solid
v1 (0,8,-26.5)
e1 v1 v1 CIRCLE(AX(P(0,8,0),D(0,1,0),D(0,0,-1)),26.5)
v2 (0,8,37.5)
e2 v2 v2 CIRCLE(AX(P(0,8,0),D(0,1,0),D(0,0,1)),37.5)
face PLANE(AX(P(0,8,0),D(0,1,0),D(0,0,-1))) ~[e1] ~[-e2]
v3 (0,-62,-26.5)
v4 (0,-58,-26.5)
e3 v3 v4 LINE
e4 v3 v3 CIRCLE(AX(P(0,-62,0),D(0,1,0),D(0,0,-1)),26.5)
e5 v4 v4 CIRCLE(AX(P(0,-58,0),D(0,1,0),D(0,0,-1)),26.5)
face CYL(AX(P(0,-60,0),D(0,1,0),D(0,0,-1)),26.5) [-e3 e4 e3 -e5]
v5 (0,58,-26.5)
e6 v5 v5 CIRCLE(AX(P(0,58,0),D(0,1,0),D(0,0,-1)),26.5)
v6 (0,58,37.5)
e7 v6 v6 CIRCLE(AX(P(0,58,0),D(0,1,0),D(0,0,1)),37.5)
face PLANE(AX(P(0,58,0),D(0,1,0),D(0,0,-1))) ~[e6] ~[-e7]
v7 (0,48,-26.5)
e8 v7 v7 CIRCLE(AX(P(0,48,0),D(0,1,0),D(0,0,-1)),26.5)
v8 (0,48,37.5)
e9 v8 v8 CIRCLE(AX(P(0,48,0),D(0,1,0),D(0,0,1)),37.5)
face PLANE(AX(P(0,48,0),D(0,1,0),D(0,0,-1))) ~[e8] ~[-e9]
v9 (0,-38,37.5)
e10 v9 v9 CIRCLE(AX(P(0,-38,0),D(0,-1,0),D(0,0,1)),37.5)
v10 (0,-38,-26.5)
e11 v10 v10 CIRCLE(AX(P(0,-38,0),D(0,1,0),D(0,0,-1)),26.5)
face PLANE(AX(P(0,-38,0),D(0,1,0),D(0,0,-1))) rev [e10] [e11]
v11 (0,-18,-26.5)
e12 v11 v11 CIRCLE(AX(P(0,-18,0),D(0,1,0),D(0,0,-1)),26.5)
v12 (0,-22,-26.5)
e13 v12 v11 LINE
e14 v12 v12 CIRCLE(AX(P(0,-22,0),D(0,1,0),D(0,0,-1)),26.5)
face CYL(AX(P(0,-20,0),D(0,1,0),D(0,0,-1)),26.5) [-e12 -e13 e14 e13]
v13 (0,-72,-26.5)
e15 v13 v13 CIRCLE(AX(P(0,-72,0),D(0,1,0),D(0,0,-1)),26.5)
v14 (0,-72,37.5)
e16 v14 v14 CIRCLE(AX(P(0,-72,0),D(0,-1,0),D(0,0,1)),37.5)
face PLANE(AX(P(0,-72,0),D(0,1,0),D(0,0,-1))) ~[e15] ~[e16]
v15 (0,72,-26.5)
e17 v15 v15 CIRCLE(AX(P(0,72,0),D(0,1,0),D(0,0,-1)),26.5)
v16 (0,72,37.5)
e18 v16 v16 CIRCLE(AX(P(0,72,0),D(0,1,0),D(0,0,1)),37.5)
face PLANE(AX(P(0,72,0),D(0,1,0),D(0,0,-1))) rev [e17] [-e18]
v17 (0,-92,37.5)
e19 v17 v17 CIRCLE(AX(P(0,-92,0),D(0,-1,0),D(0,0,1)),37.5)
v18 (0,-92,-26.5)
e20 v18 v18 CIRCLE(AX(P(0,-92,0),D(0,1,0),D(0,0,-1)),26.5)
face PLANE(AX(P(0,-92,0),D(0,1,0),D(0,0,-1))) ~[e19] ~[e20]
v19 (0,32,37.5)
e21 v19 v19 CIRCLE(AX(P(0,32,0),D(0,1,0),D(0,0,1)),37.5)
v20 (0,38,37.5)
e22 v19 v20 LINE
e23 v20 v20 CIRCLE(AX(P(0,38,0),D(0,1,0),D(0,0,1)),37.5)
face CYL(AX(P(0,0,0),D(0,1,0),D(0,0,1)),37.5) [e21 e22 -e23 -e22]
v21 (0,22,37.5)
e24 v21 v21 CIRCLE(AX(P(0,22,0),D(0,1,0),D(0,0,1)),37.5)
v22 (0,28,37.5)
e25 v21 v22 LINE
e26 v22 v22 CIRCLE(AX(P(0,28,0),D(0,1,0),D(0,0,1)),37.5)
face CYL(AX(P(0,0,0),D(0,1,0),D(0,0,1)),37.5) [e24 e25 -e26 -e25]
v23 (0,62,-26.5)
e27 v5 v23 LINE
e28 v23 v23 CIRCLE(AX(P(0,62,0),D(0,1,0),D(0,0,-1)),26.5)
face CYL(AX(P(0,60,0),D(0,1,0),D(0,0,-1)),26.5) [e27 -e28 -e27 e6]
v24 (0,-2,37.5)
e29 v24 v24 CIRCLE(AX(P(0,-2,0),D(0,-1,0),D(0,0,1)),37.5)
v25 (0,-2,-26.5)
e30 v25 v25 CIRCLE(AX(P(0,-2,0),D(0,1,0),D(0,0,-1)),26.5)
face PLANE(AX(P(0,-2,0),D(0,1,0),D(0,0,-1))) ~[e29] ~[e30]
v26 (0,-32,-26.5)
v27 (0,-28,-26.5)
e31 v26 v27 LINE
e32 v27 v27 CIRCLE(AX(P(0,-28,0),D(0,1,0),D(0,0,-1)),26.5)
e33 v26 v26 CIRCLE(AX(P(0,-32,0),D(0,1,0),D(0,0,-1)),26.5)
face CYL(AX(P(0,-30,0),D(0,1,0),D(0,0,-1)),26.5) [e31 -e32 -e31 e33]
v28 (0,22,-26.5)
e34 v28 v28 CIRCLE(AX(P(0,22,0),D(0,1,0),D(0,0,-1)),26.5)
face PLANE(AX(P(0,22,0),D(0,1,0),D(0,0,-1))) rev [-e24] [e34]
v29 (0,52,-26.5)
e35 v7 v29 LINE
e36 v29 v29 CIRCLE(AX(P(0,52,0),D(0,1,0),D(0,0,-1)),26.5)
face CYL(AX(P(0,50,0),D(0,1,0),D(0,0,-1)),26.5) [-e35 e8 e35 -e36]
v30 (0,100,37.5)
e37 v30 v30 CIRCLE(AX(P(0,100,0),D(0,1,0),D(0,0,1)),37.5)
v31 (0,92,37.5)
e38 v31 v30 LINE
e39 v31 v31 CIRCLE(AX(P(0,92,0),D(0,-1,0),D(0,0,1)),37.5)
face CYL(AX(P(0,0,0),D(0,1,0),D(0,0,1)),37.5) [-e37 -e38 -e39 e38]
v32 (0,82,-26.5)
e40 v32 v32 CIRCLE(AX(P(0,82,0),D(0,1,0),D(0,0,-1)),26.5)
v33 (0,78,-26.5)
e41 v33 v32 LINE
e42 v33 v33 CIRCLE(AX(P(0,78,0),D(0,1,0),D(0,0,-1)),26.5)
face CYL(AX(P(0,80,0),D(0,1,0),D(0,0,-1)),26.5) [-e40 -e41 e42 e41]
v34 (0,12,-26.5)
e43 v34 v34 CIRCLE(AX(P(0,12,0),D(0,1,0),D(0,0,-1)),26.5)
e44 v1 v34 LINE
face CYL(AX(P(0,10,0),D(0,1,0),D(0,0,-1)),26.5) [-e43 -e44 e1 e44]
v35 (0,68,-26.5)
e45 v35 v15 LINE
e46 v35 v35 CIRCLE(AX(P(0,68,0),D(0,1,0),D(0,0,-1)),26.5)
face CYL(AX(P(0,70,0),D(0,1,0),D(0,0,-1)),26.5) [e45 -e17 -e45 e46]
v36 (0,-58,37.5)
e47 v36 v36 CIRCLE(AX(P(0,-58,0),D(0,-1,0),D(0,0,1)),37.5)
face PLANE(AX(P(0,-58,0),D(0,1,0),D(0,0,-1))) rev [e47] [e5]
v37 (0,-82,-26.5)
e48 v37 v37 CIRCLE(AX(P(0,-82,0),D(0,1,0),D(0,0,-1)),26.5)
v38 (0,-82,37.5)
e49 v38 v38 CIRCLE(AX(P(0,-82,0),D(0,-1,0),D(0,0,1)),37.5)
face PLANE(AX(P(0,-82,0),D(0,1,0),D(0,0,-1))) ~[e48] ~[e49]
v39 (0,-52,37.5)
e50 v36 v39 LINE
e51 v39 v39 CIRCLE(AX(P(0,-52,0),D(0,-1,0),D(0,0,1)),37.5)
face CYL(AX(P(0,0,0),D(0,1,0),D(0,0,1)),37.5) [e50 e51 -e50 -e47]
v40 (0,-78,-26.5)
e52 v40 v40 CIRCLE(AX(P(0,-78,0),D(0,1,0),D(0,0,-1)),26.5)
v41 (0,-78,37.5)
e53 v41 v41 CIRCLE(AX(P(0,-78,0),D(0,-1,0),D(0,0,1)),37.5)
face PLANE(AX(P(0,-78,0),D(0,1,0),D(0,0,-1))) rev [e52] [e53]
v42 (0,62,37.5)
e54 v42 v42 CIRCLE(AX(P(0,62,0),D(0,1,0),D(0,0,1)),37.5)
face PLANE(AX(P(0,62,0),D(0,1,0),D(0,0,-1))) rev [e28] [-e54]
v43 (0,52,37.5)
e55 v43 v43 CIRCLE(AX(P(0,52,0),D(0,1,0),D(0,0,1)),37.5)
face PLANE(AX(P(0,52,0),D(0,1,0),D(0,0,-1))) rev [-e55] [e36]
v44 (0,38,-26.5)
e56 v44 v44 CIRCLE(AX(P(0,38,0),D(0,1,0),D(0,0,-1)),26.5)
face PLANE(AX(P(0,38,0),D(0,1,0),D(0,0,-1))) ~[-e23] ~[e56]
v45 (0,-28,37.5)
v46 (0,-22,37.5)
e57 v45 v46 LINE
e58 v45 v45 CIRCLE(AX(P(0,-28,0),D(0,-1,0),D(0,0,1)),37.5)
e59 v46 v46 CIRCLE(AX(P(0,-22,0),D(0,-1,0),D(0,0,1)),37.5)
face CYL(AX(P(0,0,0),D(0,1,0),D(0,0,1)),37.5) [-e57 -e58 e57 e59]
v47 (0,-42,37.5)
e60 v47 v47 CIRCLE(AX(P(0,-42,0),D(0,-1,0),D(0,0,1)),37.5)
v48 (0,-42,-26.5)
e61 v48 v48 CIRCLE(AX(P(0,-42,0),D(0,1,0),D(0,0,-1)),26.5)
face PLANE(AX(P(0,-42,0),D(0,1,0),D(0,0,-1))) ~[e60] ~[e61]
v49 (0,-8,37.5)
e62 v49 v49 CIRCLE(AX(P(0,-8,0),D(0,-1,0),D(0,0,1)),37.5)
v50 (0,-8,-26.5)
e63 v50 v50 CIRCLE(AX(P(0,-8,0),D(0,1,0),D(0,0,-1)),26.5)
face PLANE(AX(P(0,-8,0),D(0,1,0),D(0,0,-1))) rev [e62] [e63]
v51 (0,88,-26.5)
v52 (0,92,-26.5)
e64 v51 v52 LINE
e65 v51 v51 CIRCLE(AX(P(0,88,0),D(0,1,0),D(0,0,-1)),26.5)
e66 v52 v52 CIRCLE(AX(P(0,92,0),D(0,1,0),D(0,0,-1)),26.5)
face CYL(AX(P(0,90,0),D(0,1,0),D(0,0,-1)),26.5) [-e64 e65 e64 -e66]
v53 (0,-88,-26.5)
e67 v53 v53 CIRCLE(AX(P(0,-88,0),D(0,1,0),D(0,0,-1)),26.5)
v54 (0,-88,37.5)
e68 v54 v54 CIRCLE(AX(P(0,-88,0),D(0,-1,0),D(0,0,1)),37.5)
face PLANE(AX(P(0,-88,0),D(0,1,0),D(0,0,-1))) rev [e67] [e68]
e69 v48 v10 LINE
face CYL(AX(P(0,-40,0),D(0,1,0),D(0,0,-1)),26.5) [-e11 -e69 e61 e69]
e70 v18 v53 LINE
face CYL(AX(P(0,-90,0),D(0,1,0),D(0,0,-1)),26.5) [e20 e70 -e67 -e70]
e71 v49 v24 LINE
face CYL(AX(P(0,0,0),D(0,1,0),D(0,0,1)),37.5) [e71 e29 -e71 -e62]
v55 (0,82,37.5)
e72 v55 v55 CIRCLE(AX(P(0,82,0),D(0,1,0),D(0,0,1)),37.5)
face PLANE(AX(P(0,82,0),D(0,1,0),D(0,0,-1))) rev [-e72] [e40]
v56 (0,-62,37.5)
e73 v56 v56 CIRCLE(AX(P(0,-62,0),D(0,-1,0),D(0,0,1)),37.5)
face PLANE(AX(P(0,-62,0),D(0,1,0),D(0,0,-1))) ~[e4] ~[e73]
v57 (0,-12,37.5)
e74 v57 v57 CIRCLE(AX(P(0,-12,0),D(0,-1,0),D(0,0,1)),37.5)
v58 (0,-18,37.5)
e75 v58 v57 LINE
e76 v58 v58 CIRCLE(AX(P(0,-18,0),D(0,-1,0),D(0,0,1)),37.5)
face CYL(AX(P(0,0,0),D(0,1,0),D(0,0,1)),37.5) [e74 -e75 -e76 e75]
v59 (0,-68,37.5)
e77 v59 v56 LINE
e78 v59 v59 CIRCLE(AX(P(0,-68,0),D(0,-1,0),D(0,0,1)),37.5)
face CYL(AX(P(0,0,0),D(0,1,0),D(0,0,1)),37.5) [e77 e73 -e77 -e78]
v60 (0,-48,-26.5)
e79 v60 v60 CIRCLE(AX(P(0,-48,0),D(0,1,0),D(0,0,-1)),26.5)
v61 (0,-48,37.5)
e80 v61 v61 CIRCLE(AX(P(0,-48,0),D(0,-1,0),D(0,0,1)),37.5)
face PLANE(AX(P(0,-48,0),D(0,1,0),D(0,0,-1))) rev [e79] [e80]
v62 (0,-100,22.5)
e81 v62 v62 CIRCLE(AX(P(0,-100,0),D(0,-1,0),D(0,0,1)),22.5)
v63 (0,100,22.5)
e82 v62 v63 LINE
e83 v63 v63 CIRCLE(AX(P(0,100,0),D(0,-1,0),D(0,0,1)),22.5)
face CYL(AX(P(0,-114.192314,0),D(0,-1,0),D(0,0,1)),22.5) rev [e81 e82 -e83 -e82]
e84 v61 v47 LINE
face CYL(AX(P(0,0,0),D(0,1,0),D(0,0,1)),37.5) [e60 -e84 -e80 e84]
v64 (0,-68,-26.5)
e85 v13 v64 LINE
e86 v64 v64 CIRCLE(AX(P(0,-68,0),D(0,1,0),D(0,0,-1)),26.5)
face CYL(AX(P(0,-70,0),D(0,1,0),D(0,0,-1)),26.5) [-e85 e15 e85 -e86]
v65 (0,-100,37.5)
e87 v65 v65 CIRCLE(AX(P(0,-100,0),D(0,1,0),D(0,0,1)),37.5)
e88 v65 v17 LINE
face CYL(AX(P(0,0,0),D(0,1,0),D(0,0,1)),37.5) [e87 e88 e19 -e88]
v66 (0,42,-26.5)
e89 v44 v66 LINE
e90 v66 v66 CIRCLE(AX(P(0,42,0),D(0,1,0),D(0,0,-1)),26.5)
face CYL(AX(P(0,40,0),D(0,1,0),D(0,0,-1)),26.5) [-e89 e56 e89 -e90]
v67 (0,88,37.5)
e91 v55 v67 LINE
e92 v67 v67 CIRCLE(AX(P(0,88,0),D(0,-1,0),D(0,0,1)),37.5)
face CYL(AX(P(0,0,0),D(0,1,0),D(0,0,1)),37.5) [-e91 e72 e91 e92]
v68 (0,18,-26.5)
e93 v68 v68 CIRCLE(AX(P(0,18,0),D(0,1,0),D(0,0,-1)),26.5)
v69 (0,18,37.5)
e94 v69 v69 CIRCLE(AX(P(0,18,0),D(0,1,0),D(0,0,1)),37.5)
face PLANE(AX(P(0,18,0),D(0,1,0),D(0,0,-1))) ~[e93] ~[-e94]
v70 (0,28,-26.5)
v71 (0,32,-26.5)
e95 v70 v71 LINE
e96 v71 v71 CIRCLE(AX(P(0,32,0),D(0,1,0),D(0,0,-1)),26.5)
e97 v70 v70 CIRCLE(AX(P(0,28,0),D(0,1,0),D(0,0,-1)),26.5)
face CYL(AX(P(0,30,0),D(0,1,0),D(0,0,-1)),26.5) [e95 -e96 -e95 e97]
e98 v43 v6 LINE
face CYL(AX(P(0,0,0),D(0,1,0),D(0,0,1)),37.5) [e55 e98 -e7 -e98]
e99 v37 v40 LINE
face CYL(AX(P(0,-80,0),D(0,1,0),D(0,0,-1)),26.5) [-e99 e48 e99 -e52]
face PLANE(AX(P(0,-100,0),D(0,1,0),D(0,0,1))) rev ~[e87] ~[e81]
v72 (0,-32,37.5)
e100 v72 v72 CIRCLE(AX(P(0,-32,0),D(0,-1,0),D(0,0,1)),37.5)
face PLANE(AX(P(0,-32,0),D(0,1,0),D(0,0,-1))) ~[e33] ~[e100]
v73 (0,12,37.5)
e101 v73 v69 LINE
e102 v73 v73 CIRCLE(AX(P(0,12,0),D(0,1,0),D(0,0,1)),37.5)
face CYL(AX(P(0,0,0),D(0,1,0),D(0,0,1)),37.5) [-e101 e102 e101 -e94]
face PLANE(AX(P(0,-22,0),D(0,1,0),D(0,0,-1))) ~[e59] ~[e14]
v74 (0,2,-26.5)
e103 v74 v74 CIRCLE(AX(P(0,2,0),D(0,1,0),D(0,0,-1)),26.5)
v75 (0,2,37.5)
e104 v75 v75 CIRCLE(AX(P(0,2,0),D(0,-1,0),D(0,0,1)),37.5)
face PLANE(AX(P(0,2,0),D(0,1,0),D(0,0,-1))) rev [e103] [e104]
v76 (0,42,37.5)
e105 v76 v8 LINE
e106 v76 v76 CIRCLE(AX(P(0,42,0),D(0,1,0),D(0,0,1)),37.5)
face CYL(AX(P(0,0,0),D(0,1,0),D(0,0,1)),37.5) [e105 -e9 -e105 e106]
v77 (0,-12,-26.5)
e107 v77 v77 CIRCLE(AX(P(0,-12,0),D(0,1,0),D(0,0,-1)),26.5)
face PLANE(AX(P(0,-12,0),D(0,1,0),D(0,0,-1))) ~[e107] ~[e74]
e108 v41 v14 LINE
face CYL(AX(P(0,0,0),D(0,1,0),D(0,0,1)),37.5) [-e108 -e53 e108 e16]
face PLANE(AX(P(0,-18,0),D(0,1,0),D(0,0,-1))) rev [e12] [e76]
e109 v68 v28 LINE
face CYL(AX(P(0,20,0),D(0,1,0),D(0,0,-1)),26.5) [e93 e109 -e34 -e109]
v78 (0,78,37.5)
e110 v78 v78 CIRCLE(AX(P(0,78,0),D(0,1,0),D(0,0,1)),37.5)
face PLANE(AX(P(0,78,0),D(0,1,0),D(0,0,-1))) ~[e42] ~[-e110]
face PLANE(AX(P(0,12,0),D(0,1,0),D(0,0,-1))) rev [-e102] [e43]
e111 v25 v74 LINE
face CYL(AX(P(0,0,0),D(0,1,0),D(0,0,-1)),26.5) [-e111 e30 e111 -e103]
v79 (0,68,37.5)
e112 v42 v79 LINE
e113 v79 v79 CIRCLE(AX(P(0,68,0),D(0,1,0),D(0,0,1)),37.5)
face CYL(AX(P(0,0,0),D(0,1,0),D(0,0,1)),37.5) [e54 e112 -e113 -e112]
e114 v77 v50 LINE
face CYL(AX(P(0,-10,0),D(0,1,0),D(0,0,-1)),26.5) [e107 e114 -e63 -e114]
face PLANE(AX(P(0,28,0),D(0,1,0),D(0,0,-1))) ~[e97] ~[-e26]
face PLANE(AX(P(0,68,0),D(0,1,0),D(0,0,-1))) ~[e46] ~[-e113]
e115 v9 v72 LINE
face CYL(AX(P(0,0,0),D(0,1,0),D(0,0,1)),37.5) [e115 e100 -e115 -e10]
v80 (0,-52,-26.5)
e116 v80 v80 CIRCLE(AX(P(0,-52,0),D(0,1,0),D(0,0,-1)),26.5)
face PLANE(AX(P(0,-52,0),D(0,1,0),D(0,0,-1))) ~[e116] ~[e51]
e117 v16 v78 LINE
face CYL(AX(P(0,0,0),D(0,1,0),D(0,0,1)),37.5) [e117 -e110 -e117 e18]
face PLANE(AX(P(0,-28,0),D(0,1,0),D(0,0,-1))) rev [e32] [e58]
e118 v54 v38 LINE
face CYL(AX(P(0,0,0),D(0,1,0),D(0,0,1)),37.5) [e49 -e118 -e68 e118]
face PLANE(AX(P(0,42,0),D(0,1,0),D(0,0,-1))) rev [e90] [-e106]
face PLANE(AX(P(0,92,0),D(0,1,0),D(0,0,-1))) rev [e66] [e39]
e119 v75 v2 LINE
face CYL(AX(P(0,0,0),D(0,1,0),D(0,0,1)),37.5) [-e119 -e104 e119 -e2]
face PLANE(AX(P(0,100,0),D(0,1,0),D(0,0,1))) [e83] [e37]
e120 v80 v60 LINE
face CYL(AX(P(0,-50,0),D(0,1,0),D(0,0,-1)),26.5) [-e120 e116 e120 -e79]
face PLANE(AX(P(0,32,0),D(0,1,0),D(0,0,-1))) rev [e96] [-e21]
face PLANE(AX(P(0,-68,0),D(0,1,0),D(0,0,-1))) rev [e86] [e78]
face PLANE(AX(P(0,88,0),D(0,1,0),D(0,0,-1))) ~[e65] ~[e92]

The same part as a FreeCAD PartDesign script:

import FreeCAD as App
import Part
import Sketcher
Q = App.Units.Quantity

doc = App.newDocument("Part")
body = doc.addObject("PartDesign::Body", "Body")

# Sketch on XZ plane
sketch1 = body.newObject("Sketcher::SketchObject", "Sketch")
sketch1.AttachmentSupport = (doc.getObject("XZ_Plane"), [""])
sketch1.MapMode = "FlatFace"
sketch1.addGeometry(Part.Circle(App.Vector(0, 0, 0), App.Vector(0, 0, 1), 38), False)
sketch1.addConstraint(Sketcher.Constraint("Coincident", 0, 3, -1, 1))
sketch1.addConstraint(Sketcher.Constraint("Diameter", 0, Q("75 mm")))
pad1 = body.newObject("PartDesign::Pad", "Pad")
pad1.Profile = sketch1
pad1.Length = 200
pad1.Midplane = True

# Sketch on XZ plane
sketch2 = body.newObject("Sketcher::SketchObject", "Sketch001")
sketch2.AttachmentSupport = (doc.getObject("XZ_Plane"), [""])
sketch2.MapMode = "FlatFace"
sketch2.addGeometry(Part.Circle(App.Vector(0, 0, 0), App.Vector(0, 0, 1), 22), False)
sketch2.addConstraint(Sketcher.Constraint("Coincident", 0, 3, -1, 1))
sketch2.addConstraint(Sketcher.Constraint("Diameter", 0, Q("45 mm")))
pocket1 = body.newObject("PartDesign::Pocket", "Pocket")
pocket1.Profile = sketch2
pocket1.Type = "ThroughAll"
pocket1.Midplane = True

# Sketch on XY plane
sketch3 = body.newObject("Sketcher::SketchObject", "Sketch002")
sketch3.AttachmentSupport = (doc.getObject("XY_Plane"), [""])
sketch3.MapMode = "FlatFace"
sketch3.addGeometry(Part.LineSegment(App.Vector(26.5, 92, 0), App.Vector(26.5, 88, 0)), False)
sketch3.addGeometry(Part.LineSegment(App.Vector(26.5, 88, 0), App.Vector(37.5, 88, 0)), False)
sketch3.addGeometry(Part.LineSegment(App.Vector(37.5, 88, 0), App.Vector(37.5, 92, 0)), False)
sketch3.addGeometry(Part.LineSegment(App.Vector(37.5, 92, 0), App.Vector(26.5, 92, 0)), False)
sketch3.addConstraint(Sketcher.Constraint("Coincident", 0, 2, 1, 1))
sketch3.addConstraint(Sketcher.Constraint("Coincident", 1, 2, 2, 1))
sketch3.addConstraint(Sketcher.Constraint("Coincident", 2, 2, 3, 1))
sketch3.addConstraint(Sketcher.Constraint("Coincident", 3, 2, 0, 1))
sketch3.addConstraint(Sketcher.Constraint("Vertical", 0))
sketch3.addConstraint(Sketcher.Constraint("Horizontal", 1))
sketch3.addConstraint(Sketcher.Constraint("Vertical", 2))
sketch3.addConstraint(Sketcher.Constraint("Horizontal", 3))
sketch3.addConstraint(Sketcher.Constraint("DistanceX", 1, 1, 1, 2, Q("11 mm")))
sketch3.addConstraint(Sketcher.Constraint("DistanceY", 0, 2, 0, 1, Q("4 mm")))
sketch3.addConstraint(Sketcher.Constraint("DistanceY", -1, 1, 0, 2, Q("88 mm")))
sketch3.addConstraint(Sketcher.Constraint("DistanceX", -1, 1, 0, 2, Q("26.5 mm")))
groove = body.newObject("PartDesign::Groove", "Groove")
groove.Profile = sketch3
groove.ReferenceAxis = (sketch3, ["V_Axis"])
groove.Angle = 360
doc.recompute()

linearpattern = body.newObject("PartDesign::LinearPattern", "LinearPattern")
linearpattern.Originals = [groove]
linearpattern.Direction = (doc.getObject("Y_Axis"), [""])
linearpattern.Mode = "offset"
linearpattern.Offset = 10
linearpattern.Occurrences = 19
linearpattern.Reversed = True
body.Tip = linearpattern

doc.recompute()
